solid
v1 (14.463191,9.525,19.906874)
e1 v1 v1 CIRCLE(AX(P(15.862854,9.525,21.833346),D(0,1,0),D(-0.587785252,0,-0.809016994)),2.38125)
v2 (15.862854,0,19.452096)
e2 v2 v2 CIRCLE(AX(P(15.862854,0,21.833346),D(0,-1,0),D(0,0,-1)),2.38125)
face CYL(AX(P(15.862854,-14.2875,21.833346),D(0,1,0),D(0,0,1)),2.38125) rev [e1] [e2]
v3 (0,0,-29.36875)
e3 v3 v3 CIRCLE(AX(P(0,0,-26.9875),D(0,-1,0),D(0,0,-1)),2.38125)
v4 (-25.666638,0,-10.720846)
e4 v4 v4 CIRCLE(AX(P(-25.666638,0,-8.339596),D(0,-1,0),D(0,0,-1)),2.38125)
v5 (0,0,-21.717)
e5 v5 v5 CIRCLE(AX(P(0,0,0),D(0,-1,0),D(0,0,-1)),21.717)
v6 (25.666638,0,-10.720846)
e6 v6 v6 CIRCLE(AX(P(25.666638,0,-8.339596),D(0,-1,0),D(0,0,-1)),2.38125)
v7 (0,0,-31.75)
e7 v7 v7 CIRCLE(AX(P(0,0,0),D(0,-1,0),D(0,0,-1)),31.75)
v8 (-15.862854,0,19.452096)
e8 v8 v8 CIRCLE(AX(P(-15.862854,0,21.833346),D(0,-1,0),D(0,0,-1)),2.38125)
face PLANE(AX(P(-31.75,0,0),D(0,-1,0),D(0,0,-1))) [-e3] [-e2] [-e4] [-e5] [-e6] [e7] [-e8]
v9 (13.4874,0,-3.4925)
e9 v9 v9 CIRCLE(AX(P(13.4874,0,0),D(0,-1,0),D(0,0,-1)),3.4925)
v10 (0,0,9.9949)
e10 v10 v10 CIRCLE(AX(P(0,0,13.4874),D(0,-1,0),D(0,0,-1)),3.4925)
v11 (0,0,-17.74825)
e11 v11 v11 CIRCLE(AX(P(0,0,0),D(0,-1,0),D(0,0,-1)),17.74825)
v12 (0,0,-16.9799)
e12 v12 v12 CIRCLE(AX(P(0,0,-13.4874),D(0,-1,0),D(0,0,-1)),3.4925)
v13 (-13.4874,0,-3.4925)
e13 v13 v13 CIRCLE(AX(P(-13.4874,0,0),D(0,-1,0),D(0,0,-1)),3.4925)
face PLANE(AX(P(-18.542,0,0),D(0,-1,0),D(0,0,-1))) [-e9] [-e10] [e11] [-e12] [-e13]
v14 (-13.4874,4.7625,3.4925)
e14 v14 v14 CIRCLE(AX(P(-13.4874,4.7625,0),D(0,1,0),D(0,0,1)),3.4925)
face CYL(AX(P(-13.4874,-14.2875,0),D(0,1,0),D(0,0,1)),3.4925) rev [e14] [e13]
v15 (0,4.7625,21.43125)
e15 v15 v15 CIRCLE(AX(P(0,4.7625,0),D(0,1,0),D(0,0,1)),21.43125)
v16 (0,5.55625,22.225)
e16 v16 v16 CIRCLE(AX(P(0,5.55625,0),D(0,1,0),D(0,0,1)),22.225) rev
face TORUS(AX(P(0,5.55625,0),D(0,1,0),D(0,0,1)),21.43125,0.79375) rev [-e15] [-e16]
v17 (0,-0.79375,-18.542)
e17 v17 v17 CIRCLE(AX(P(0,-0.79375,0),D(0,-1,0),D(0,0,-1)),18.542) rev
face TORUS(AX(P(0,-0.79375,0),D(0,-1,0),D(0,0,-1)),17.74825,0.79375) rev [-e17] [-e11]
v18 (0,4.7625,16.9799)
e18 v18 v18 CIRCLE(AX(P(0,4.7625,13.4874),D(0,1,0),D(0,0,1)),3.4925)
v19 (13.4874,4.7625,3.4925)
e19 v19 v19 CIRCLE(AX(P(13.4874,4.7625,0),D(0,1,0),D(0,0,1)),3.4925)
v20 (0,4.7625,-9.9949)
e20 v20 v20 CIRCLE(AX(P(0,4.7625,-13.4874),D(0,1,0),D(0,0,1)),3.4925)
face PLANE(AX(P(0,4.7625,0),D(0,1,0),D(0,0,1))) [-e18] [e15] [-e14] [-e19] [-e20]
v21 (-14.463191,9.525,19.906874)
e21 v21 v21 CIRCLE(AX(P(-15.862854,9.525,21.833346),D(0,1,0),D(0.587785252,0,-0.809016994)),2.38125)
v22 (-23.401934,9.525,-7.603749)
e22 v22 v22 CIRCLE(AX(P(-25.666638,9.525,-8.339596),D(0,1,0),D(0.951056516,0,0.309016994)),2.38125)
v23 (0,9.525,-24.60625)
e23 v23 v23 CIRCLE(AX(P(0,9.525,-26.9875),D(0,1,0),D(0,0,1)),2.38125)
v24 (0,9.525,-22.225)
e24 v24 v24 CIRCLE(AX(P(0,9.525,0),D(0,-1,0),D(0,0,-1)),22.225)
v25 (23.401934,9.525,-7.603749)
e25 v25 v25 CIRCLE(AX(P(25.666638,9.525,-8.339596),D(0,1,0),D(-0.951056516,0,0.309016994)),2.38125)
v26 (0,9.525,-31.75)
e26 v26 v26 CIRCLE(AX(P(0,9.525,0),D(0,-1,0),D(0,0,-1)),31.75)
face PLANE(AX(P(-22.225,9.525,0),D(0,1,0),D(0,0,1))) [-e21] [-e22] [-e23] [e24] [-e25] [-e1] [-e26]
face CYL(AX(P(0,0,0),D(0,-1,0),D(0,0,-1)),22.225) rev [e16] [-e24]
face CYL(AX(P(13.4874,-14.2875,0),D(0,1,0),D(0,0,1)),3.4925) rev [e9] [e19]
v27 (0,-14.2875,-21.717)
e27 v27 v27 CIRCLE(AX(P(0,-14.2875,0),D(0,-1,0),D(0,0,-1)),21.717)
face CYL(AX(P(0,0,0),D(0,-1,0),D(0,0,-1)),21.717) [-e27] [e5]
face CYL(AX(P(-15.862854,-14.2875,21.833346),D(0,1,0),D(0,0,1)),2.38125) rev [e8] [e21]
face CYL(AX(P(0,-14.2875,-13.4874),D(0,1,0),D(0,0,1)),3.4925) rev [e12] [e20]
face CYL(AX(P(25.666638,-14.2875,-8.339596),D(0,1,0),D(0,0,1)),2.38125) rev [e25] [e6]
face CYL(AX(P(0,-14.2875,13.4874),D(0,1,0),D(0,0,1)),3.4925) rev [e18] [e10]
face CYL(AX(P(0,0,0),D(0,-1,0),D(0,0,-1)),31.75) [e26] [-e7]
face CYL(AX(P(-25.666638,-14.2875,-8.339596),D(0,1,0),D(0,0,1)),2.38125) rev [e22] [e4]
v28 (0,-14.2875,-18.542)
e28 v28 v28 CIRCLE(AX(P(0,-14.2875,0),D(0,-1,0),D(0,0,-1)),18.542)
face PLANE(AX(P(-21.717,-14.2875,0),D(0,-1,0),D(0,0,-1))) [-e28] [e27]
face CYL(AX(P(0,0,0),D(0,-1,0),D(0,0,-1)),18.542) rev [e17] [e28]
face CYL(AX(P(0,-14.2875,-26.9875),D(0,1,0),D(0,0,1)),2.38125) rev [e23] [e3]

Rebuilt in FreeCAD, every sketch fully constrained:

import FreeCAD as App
import Part
import Sketcher

V = App.Vector
Q = App.Units.Quantity


def edges_at(feature, points):
    """Names of the edges that pass closest to the given points."""
    edges = feature.Shape.Edges
    near = lambda p: min(range(len(edges)), key=lambda i: edges[i].distToShape(Part.Vertex(*p))[0])
    return sorted({f"Edge{near(p) + 1}" for p in points})


def add_polygon(sketch, points):
    """Adds a closed chain of lines whose ends are joined by coincident constraints."""
    first, n = sketch.GeometryCount, len(points)
    for a, b in zip(points, points[1:] + points[:1]):
        sketch.addGeometry(Part.LineSegment(App.Vector(*a, 0), App.Vector(*b, 0)), False)
    for i in range(n):
        sketch.addConstraint(Sketcher.Constraint("Coincident", first + i, 2, first + (i + 1) % n, 1))

doc = App.newDocument("Part")
body = doc.addObject("PartDesign::Body", "Body")

sketch1 = body.newObject("Sketcher::SketchObject", "Sketch")
sketch1.AttachmentSupport = (doc.getObject("XY_Plane"), [""])
sketch1.MapMode = "FlatFace"
add_polygon(sketch1, [(18.5, 0), (18.5, -14.3), (21.7, -14.3), (21.7, 0), (31.8, 0), (31.8, 9.5), (22.2, 9.5), (22.2, 4.8), (0, 4.8), (0, 0)])
sketch1.addConstraint([
    Sketcher.Constraint("Vertical", 0),
    Sketcher.Constraint("Horizontal", 1),
    Sketcher.Constraint("Vertical", 2),
    Sketcher.Constraint("Horizontal", 3),
    Sketcher.Constraint("Vertical", 4),
    Sketcher.Constraint("Horizontal", 5),
    Sketcher.Constraint("Vertical", 6),
    Sketcher.Constraint("Horizontal", 7),
    Sketcher.Constraint("Vertical", 8),
    Sketcher.Constraint("Horizontal", 9),
    Sketcher.Constraint("Coincident", 8, 2, -1, 1),
    Sketcher.Constraint("PointOnObject", 2, 2, -1),
    Sketcher.Constraint("Equal", 5, 4),
    Sketcher.Constraint("Equal", 6, 8),
    Sketcher.Constraint("DistanceX", 9, 1, 9, 2, Q("0.73 in")),
    Sketcher.Constraint("DistanceX", 1, 1, 1, 2, Q("0.125 in")),
    Sketcher.Constraint("DistanceX", 3, 1, 3, 2, Q("0.395 in")),
    Sketcher.Constraint("DistanceX", 5, 2, 5, 1, Q("0.375 in")),
    Sketcher.Constraint("DistanceY", 0, 2, 0, 1, Q("0.5625 in")),
])
revolution = body.newObject("PartDesign::Revolution", "Revolution")
revolution.Profile = sketch1
revolution.ReferenceAxis = (sketch1, ["V_Axis"])
revolution.Angle = 360

sketch2 = body.newObject("Sketcher::SketchObject", "Sketch001")
sketch2.AttachmentSupport = (doc.getObject("XZ_Plane"), [""])
sketch2.MapMode = "FlatFace"
sketch2.AttachmentOffset = App.Placement(V(0, 0, -0.1875 * 25.4), App.Rotation())
sketch2.addGeometry([
    Part.Circle(V(-13.5, 0, 0), V(0, 0, 1), 3.5),
    Part.Circle(V(0, -13.5, 0), V(0, 0, 1), 3.5),
    Part.Circle(V(13.5, 0, 0), V(0, 0, 1), 3.5),
    Part.Circle(V(0, 13.5, 0), V(0, 0, 1), 3.5),
], False)
sketch2.addConstraint([
    Sketcher.Constraint("Equal", 0, 1),
    Sketcher.Constraint("Equal", 1, 2),
    Sketcher.Constraint("Equal", 2, 3),
    Sketcher.Constraint("Symmetric", 0, 3, 2, 3, -1, 1),
    Sketcher.Constraint("Symmetric", 1, 3, 3, 3, -1, 1),
    Sketcher.Constraint("PointOnObject", 0, 3, -1),
    Sketcher.Constraint("PointOnObject", 1, 3, -2),
    Sketcher.Constraint("Diameter", 0, Q("0.275 in")),
    Sketcher.Constraint("DistanceX", 0, 3, -1, 1, Q("0.531 in")),
    Sketcher.Constraint("DistanceY", 1, 3, -1, 1, Q("0.531 in")),
])
pocket1 = body.newObject("PartDesign::Pocket", "Pocket")
pocket1.Profile = sketch2
pocket1.Type = "ThroughAll"
pocket1.Reversed = True

sketch3 = body.newObject("Sketcher::SketchObject", "Sketch002")
sketch3.AttachmentSupport = (doc.getObject("XZ_Plane"), [""])
sketch3.MapMode = "FlatFace"
sketch3.AttachmentOffset = App.Placement(V(0, 0, -0.375 * 25.4), App.Rotation())
sketch3.addGeometry(Part.Circle(V(0, -27, 0), V(0, 0, 1), 2.4), False)
sketch3.addConstraint([
    Sketcher.Constraint("PointOnObject", 0, 3, -2),
    Sketcher.Constraint("Diameter", 0, Q("0.1875 in")),
    Sketcher.Constraint("DistanceY", 0, 3, -1, 1, Q("1.0625 in")),
])
pocket2 = body.newObject("PartDesign::Pocket", "Pocket001")
pocket2.Profile = sketch3
pocket2.Type = "ThroughAll"
pocket2.Reversed = True
doc.recompute()

polarpattern = body.newObject("PartDesign::PolarPattern", "PolarPattern")
polarpattern.Originals = [pocket2]
polarpattern.Axis = (doc.getObject("Y_Axis"), [""])
polarpattern.Angle = 360
polarpattern.Occurrences = 5
body.Tip = polarpattern
doc.recompute()

fillet = body.newObject("PartDesign::Fillet", "Fillet")
fillet.Base = (polarpattern, edges_at(polarpattern, [(-18.542, 0, 0), (-22.225, 4.763, 0)]))
fillet.Radius = Q("0.03125 in")

doc.recompute()
